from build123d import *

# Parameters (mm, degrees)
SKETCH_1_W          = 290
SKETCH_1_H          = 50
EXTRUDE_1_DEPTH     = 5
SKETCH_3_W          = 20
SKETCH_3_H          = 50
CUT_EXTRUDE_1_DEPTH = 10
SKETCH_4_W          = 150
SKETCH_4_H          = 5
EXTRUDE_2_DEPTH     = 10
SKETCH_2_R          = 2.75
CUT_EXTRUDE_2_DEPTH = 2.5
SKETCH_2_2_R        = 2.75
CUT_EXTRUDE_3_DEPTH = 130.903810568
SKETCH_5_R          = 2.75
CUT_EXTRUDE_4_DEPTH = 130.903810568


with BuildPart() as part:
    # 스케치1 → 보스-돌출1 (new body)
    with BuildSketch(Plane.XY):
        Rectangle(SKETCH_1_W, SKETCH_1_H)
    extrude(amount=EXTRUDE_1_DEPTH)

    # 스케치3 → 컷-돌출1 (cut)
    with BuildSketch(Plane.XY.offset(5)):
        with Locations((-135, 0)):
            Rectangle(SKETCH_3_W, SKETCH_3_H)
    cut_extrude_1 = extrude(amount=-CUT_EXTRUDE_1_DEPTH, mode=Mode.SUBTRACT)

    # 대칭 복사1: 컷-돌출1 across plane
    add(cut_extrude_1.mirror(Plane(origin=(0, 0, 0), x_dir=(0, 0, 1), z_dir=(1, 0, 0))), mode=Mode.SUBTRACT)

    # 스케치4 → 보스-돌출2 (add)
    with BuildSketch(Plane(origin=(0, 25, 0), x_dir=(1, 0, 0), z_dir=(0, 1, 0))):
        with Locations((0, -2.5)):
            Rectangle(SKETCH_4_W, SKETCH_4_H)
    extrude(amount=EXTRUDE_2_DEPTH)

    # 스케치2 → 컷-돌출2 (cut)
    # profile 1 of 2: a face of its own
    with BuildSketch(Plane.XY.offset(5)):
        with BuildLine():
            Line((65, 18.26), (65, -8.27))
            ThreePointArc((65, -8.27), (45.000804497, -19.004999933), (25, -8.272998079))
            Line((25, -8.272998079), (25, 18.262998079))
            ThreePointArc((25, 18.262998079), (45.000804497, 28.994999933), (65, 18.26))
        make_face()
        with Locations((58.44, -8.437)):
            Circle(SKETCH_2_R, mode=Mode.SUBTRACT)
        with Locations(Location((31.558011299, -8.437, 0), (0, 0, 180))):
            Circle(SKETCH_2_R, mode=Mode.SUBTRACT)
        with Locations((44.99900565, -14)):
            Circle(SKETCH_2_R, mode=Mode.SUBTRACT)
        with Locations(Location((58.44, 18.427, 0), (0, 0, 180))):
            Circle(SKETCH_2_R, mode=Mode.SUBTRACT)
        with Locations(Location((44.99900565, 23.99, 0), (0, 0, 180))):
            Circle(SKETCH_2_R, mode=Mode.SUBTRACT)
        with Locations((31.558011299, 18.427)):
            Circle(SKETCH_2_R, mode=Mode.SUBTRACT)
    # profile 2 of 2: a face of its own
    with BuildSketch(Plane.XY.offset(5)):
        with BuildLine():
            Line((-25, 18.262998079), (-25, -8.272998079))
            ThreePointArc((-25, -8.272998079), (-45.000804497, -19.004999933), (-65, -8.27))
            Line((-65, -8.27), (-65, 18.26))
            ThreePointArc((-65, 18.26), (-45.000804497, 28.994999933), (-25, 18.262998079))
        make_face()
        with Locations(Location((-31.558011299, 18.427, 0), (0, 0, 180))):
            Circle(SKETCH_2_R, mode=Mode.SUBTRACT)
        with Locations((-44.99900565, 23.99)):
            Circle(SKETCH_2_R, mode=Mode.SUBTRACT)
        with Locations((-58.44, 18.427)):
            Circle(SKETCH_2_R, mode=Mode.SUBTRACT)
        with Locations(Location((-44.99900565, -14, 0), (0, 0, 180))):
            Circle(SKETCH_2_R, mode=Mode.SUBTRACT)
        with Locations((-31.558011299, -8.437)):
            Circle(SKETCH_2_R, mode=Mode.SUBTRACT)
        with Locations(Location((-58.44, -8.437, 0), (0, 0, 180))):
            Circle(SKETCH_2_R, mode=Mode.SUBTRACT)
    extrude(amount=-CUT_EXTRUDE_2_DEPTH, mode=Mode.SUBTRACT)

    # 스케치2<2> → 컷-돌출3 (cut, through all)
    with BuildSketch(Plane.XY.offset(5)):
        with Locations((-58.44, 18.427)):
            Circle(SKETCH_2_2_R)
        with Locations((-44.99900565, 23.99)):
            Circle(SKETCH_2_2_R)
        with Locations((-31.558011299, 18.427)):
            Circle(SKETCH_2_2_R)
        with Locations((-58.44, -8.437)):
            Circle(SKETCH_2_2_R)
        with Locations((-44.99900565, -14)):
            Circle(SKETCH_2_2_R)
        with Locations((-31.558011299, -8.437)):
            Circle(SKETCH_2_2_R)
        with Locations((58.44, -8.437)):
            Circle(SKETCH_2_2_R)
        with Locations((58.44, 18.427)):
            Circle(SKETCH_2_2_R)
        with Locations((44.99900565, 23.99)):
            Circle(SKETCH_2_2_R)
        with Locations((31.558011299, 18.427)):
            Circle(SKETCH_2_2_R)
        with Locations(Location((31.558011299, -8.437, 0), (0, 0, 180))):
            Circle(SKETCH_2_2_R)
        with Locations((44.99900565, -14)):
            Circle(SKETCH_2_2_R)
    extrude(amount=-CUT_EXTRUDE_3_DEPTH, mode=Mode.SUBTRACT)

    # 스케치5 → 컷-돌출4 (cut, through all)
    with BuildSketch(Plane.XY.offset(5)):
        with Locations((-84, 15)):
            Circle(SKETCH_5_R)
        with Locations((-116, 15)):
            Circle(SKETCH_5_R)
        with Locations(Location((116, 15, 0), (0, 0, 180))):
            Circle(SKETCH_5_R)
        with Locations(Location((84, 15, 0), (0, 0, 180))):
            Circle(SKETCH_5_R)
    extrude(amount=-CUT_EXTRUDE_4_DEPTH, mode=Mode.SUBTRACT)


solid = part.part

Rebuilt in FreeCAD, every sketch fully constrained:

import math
import FreeCAD as App
import Part
import Sketcher

V = App.Vector


def add_polygon(sketch, points):
    """Adds a closed chain of lines whose ends are joined by coincident constraints."""
    first, n = sketch.GeometryCount, len(points)
    for a, b in zip(points, points[1:] + points[:1]):
        sketch.addGeometry(Part.LineSegment(App.Vector(*a, 0), App.Vector(*b, 0)), False)
    for i in range(n):
        sketch.addConstraint(Sketcher.Constraint("Coincident", first + i, 2, first + (i + 1) % n, 1))

doc = App.newDocument("Part")
body = doc.addObject("PartDesign::Body", "Body")

# Sketch on XY plane
sketch1 = body.newObject("Sketcher::SketchObject", "Sketch")
sketch1.AttachmentSupport = (doc.getObject("XY_Plane"), [""])
sketch1.MapMode = "FlatFace"
add_polygon(sketch1, [(-145, 25), (-145, -25), (145, -25), (145, 25)])  # lines 0-3
sketch1.addConstraint(Sketcher.Constraint("Vertical", 0))
sketch1.addConstraint(Sketcher.Constraint("Horizontal", 1))
sketch1.addConstraint(Sketcher.Constraint("Vertical", 2))
sketch1.addConstraint(Sketcher.Constraint("Horizontal", 3))
sketch1.addConstraint(Sketcher.Constraint("Symmetric", 0, 2, 2, 2, -1, 1))
sketch1.addConstraint(Sketcher.Constraint("DistanceX", 1, 1, 1, 2, 290.0))
sketch1.addConstraint(Sketcher.Constraint("DistanceY", 0, 2, 0, 1, 50.0))
pad1 = body.newObject("PartDesign::Pad", "Pad")
pad1.Profile = sketch1
pad1.Length = 5

# Sketch on XY plane
sketch2 = body.newObject("Sketcher::SketchObject", "Sketch001")
sketch2.AttachmentSupport = (doc.getObject("XY_Plane"), [""])
sketch2.MapMode = "FlatFace"
sketch2.AttachmentOffset = App.Placement(V(0, 0, 5), App.Rotation())
add_polygon(sketch2, [(-145, 25), (-145, -25), (-125, -25), (-125, 25)])  # lines 0-3
sketch2.addConstraint(Sketcher.Constraint("Vertical", 0))
sketch2.addConstraint(Sketcher.Constraint("Horizontal", 1))
sketch2.addConstraint(Sketcher.Constraint("Vertical", 2))
sketch2.addConstraint(Sketcher.Constraint("Horizontal", 3))
sketch2.addConstraint(Sketcher.Constraint("DistanceX", 1, 1, 1, 2, 20.0))
sketch2.addConstraint(Sketcher.Constraint("DistanceY", 0, 2, 0, 1, 50.0))
sketch2.addConstraint(Sketcher.Constraint("DistanceX", 0, 2, -1, 1, 145.0))
sketch2.addConstraint(Sketcher.Constraint("DistanceY", 0, 2, -1, 1, 25.0))
pocket1 = body.newObject("PartDesign::Pocket", "Pocket")
pocket1.Profile = sketch2
pocket1.Length = 10
doc.recompute()

mirrored = body.newObject("PartDesign::Mirrored", "Mirrored")
mirrored.Originals = [pocket1]
mirrored.MirrorPlane = (doc.getObject("YZ_Plane"), [""])
body.Tip = mirrored

# Sketch on XZ plane
sketch3 = body.newObject("Sketcher::SketchObject", "Sketch002")
sketch3.AttachmentSupport = (doc.getObject("XZ_Plane"), [""])
sketch3.MapMode = "FlatFace"
sketch3.AttachmentOffset = App.Placement(V(0, 0, -25), App.Rotation())
add_polygon(sketch3, [(-75, 0), (-75, 5), (75, 5), (75, 0)])  # lines 0-3
sketch3.addConstraint(Sketcher.Constraint("Vertical", 0))
sketch3.addConstraint(Sketcher.Constraint("Horizontal", 1))
sketch3.addConstraint(Sketcher.Constraint("Vertical", 2))
sketch3.addConstraint(Sketcher.Constraint("Horizontal", 3))
sketch3.addConstraint(Sketcher.Constraint("Symmetric", 2, 2, 3, 2, -1, 1))
sketch3.addConstraint(Sketcher.Constraint("DistanceX", 1, 1, 1, 2, 150.0))
sketch3.addConstraint(Sketcher.Constraint("DistanceY", 0, 1, 0, 2, 5.0))
pad2 = body.newObject("PartDesign::Pad", "Pad001")
pad2.Profile = sketch3
pad2.Length = 10
pad2.Reversed = True

# Sketch on XY plane
sketch4 = body.newObject("Sketcher::SketchObject", "Sketch003")
sketch4.AttachmentSupport = (doc.getObject("XY_Plane"), [""])
sketch4.MapMode = "FlatFace"
sketch4.AttachmentOffset = App.Placement(V(0, 0, 5), App.Rotation())
sketch4.addGeometry(Part.LineSegment(V(65, -8.3, 0), V(65, 18.3, 0)), False)
sketch4.addGeometry(Part.ArcOfCircle(Part.Circle(V(45, 5, 0), V(0, 0, 1), 24), math.radians(34), math.radians(146)), False)
sketch4.addGeometry(Part.LineSegment(V(25, 18.3, 0), V(25, -8.3, 0)), False)
sketch4.addGeometry(Part.ArcOfCircle(Part.Circle(V(45, 5, 0), V(0, 0, 1), 24), math.radians(-146), math.radians(-34)), False)
sketch4.addGeometry(Part.Circle(V(58.4, -8.4, 0), V(0, 0, 1), 2.8), False)
sketch4.addGeometry(Part.Circle(V(45, -14, 0), V(0, 0, 1), 2.8), False)
sketch4.addGeometry(Part.Circle(V(31.6, -8.4, 0), V(0, 0, 1), 2.8), False)
sketch4.addGeometry(Part.Circle(V(58.4, 18.4, 0), V(0, 0, 1), 2.8), False)
sketch4.addGeometry(Part.Circle(V(45, 24, 0), V(0, 0, 1), 2.8), False)
sketch4.addGeometry(Part.Circle(V(31.6, 18.4, 0), V(0, 0, 1), 2.8), False)
sketch4.addGeometry(Part.LineSegment(V(-25, -8.3, 0), V(-25, 18.3, 0)), False)
sketch4.addGeometry(Part.ArcOfCircle(Part.Circle(V(-45, 5, 0), V(0, 0, 1), 24), math.radians(34), math.radians(146)), False)
sketch4.addGeometry(Part.LineSegment(V(-65, 18.3, 0), V(-65, -8.3, 0)), False)
sketch4.addGeometry(Part.ArcOfCircle(Part.Circle(V(-45, 5, 0), V(0, 0, 1), 24), math.radians(-146), math.radians(-34)), False)
sketch4.addGeometry(Part.Circle(V(-31.6, -8.4, 0), V(0, 0, 1), 2.8), False)
sketch4.addGeometry(Part.Circle(V(-45, -14, 0), V(0, 0, 1), 2.8), False)
sketch4.addGeometry(Part.Circle(V(-58.4, -8.4, 0), V(0, 0, 1), 2.8), False)
sketch4.addGeometry(Part.Circle(V(-31.6, 18.4, 0), V(0, 0, 1), 2.8), False)
sketch4.addGeometry(Part.Circle(V(-45, 24, 0), V(0, 0, 1), 2.8), False)
sketch4.addGeometry(Part.Circle(V(-58.4, 18.4, 0), V(0, 0, 1), 2.8), False)
sketch4.addConstraint(Sketcher.Constraint("Coincident", 0, 2, 1, 1))
sketch4.addConstraint(Sketcher.Constraint("Coincident", 1, 2, 2, 1))
sketch4.addConstraint(Sketcher.Constraint("Coincident", 2, 2, 3, 1))
sketch4.addConstraint(Sketcher.Constraint("Coincident", 3, 2, 0, 1))
sketch4.addConstraint(Sketcher.Constraint("Coincident", 10, 2, 11, 1))
sketch4.addConstraint(Sketcher.Constraint("Coincident", 11, 2, 12, 1))
sketch4.addConstraint(Sketcher.Constraint("Coincident", 12, 2, 13, 1))
sketch4.addConstraint(Sketcher.Constraint("Coincident", 13, 2, 10, 1))
sketch4.addConstraint(Sketcher.Constraint("Vertical", 0))
sketch4.addConstraint(Sketcher.Constraint("Vertical", 2))
sketch4.addConstraint(Sketcher.Constraint("Vertical", 10))
sketch4.addConstraint(Sketcher.Constraint("Vertical", 12))
sketch4.addConstraint(Sketcher.Constraint("Coincident", 3, 3, 1, 3))
sketch4.addConstraint(Sketcher.Constraint("Coincident", 13, 3, 11, 3))
sketch4.addConstraint(Sketcher.Constraint("Equal", 1, 3))
sketch4.addConstraint(Sketcher.Constraint("Equal", 4, 5))
sketch4.addConstraint(Sketcher.Constraint("Equal", 5, 6))
sketch4.addConstraint(Sketcher.Constraint("Equal", 6, 7))
sketch4.addConstraint(Sketcher.Constraint("Equal", 7, 8))
sketch4.addConstraint(Sketcher.Constraint("Equal", 8, 9))
sketch4.addConstraint(Sketcher.Constraint("Equal", 3, 11))
sketch4.addConstraint(Sketcher.Constraint("Equal", 11, 13))
sketch4.addConstraint(Sketcher.Constraint("Equal", 9, 14))
sketch4.addConstraint(Sketcher.Constraint("Equal", 14, 15))
sketch4.addConstraint(Sketcher.Constraint("Equal", 15, 16))
sketch4.addConstraint(Sketcher.Constraint("Equal", 16, 17))
sketch4.addConstraint(Sketcher.Constraint("Equal", 17, 18))
sketch4.addConstraint(Sketcher.Constraint("Equal", 18, 19))
sketch4.addConstraint(Sketcher.Constraint("Symmetric", 1, 3, 11, 3, -2))
sketch4.addConstraint(Sketcher.Constraint("Symmetric", 6, 3, 14, 3, -2))
sketch4.addConstraint(Sketcher.Constraint("Symmetric", 5, 3, 15, 3, -2))
sketch4.addConstraint(Sketcher.Constraint("Symmetric", 4, 3, 16, 3, -2))
sketch4.addConstraint(Sketcher.Constraint("Symmetric", 9, 3, 17, 3, -2))
sketch4.addConstraint(Sketcher.Constraint("Symmetric", 8, 3, 18, 3, -2))
sketch4.addConstraint(Sketcher.Constraint("Symmetric", 7, 3, 19, 3, -2))
sketch4.addConstraint(Sketcher.Constraint("Horizontal", 4, 3, 6, 3))
sketch4.addConstraint(Sketcher.Constraint("Horizontal", 7, 3, 9, 3))
sketch4.addConstraint(Sketcher.Constraint("Horizontal", 1, 2, 10, 2))
sketch4.addConstraint(Sketcher.Constraint("Horizontal", 0, 2, 11, 2))
sketch4.addConstraint(Sketcher.Constraint("Vertical", 3, 3, 5, 3))
sketch4.addConstraint(Sketcher.Constraint("Vertical", 4, 3, 7, 3))
sketch4.addConstraint(Sketcher.Constraint("Vertical", 5, 3, 8, 3))
sketch4.addConstraint(Sketcher.Constraint("Vertical", 6, 3, 9, 3))
sketch4.addConstraint(Sketcher.Constraint("Radius", 1, 24.0))
sketch4.addConstraint(Sketcher.Constraint("Diameter", 4, 5.5))
sketch4.addConstraint(Sketcher.Constraint("DistanceY", 5, 3, -1, 1, 14.0))
sketch4.addConstraint(Sketcher.Constraint("DistanceX", -1, 1, 0, 2, 65.0))
sketch4.addConstraint(Sketcher.Constraint("DistanceX", -1, 1, 1, 2, 25.0))
sketch4.addConstraint(Sketcher.Constraint("DistanceY", 0, 1, 0, 2, 26.53))
sketch4.addConstraint(Sketcher.Constraint("DistanceY", 6, 3, 1, 2, 26.699998))
sketch4.addConstraint(Sketcher.Constraint("DistanceX", -1, 1, 4, 3, 58.44))
sketch4.addConstraint(Sketcher.Constraint("DistanceY", -1, 1, 8, 3, 23.99))
sketch4.addConstraint(Sketcher.Constraint("DistanceY", -1, 1, 0, 2, 18.26))
sketch4.addConstraint(Sketcher.Constraint("DistanceY", -1, 1, 7, 3, 18.427))
sketch4.addConstraint(Sketcher.Constraint("DistanceX", -1, 1, 6, 3, 31.558011))
pocket2 = body.newObject("PartDesign::Pocket", "Pocket001")
pocket2.Profile = sketch4
pocket2.Length = 2.5

# Sketch on XY plane
sketch5 = body.newObject("Sketcher::SketchObject", "Sketch004")
sketch5.AttachmentSupport = (doc.getObject("XY_Plane"), [""])
sketch5.MapMode = "FlatFace"
sketch5.AttachmentOffset = App.Placement(V(0, 0, 5), App.Rotation())
sketch5.addGeometry(Part.Circle(V(-58.4, 18.4, 0), V(0, 0, 1), 2.8), False)
sketch5.addGeometry(Part.Circle(V(-45, 24, 0), V(0, 0, 1), 2.8), False)
sketch5.addGeometry(Part.Circle(V(-31.6, 18.4, 0), V(0, 0, 1), 2.8), False)
sketch5.addGeometry(Part.Circle(V(-58.4, -8.4, 0), V(0, 0, 1), 2.8), False)
sketch5.addGeometry(Part.Circle(V(-45, -14, 0), V(0, 0, 1), 2.8), False)
sketch5.addGeometry(Part.Circle(V(-31.6, -8.4, 0), V(0, 0, 1), 2.8), False)
sketch5.addGeometry(Part.Circle(V(58.4, -8.4, 0), V(0, 0, 1), 2.8), False)
sketch5.addGeometry(Part.Circle(V(58.4, 18.4, 0), V(0, 0, 1), 2.8), False)
sketch5.addGeometry(Part.Circle(V(45, 24, 0), V(0, 0, 1), 2.8), False)
sketch5.addGeometry(Part.Circle(V(31.6, 18.4, 0), V(0, 0, 1), 2.8), False)
sketch5.addGeometry(Part.Circle(V(31.6, -8.4, 0), V(0, 0, 1), 2.8), False)
sketch5.addGeometry(Part.Circle(V(45, -14, 0), V(0, 0, 1), 2.8), False)
sketch5.addConstraint(Sketcher.Constraint("Equal", 0, 1))
sketch5.addConstraint(Sketcher.Constraint("Equal", 1, 2))
sketch5.addConstraint(Sketcher.Constraint("Equal", 2, 3))
sketch5.addConstraint(Sketcher.Constraint("Equal", 3, 4))
sketch5.addConstraint(Sketcher.Constraint("Equal", 4, 5))
sketch5.addConstraint(Sketcher.Constraint("Equal", 5, 6))
sketch5.addConstraint(Sketcher.Constraint("Equal", 6, 7))
sketch5.addConstraint(Sketcher.Constraint("Equal", 7, 8))
sketch5.addConstraint(Sketcher.Constraint("Equal", 8, 9))
sketch5.addConstraint(Sketcher.Constraint("Equal", 9, 10))
sketch5.addConstraint(Sketcher.Constraint("Equal", 10, 11))
sketch5.addConstraint(Sketcher.Constraint("Symmetric", 3, 3, 6, 3, -2))
sketch5.addConstraint(Sketcher.Constraint("Symmetric", 0, 3, 7, 3, -2))
sketch5.addConstraint(Sketcher.Constraint("Symmetric", 1, 3, 8, 3, -2))
sketch5.addConstraint(Sketcher.Constraint("Symmetric", 2, 3, 9, 3, -2))
sketch5.addConstraint(Sketcher.Constraint("Symmetric", 5, 3, 10, 3, -2))
sketch5.addConstraint(Sketcher.Constraint("Symmetric", 4, 3, 11, 3, -2))
sketch5.addConstraint(Sketcher.Constraint("Horizontal", 0, 3, 2, 3))
sketch5.addConstraint(Sketcher.Constraint("Horizontal", 3, 3, 5, 3))
sketch5.addConstraint(Sketcher.Constraint("Vertical", 0, 3, 3, 3))
sketch5.addConstraint(Sketcher.Constraint("Vertical", 1, 3, 4, 3))
sketch5.addConstraint(Sketcher.Constraint("Vertical", 2, 3, 5, 3))
sketch5.addConstraint(Sketcher.Constraint("Diameter", 0, 5.5))
sketch5.addConstraint(Sketcher.Constraint("DistanceY", 4, 3, -1, 1, 14.0))
sketch5.addConstraint(Sketcher.Constraint("DistanceX", 0, 3, -1, 1, 58.44))
sketch5.addConstraint(Sketcher.Constraint("DistanceY", -1, 1, 1, 3, 23.99))
sketch5.addConstraint(Sketcher.Constraint("DistanceY", -1, 1, 0, 3, 18.427))
sketch5.addConstraint(Sketcher.Constraint("DistanceY", 3, 3, -1, 1, 8.437))
sketch5.addConstraint(Sketcher.Constraint("DistanceX", 2, 3, -1, 1, 31.558011))
sketch5.addConstraint(Sketcher.Constraint("DistanceX", 1, 3, 8, 3, 89.998011))
pocket3 = body.newObject("PartDesign::Pocket", "Pocket002")
pocket3.Profile = sketch5
pocket3.Type = "ThroughAll"

# Sketch on XY plane
sketch6 = body.newObject("Sketcher::SketchObject", "Sketch005")
sketch6.AttachmentSupport = (doc.getObject("XY_Plane"), [""])
sketch6.MapMode = "FlatFace"
sketch6.AttachmentOffset = App.Placement(V(0, 0, 5), App.Rotation())
sketch6.addGeometry(Part.Circle(V(-84, 15, 0), V(0, 0, 1), 2.8), False)
sketch6.addGeometry(Part.Circle(V(-116, 15, 0), V(0, 0, 1), 2.8), False)
sketch6.addGeometry(Part.Circle(V(116, 15, 0), V(0, 0, 1), 2.8), False)
sketch6.addGeometry(Part.Circle(V(84, 15, 0), V(0, 0, 1), 2.8), False)
sketch6.addConstraint(Sketcher.Constraint("Equal", 0, 1))
sketch6.addConstraint(Sketcher.Constraint("Equal", 1, 2))
sketch6.addConstraint(Sketcher.Constraint("Equal", 2, 3))
sketch6.addConstraint(Sketcher.Constraint("Symmetric", 1, 3, 2, 3, -2))
sketch6.addConstraint(Sketcher.Constraint("Symmetric", 0, 3, 3, 3, -2))
sketch6.addConstraint(Sketcher.Constraint("Horizontal", 0, 3, 1, 3))
sketch6.addConstraint(Sketcher.Constraint("Diameter", 0, 5.5))
sketch6.addConstraint(Sketcher.Constraint("DistanceX", 0, 3, -1, 1, 84.0))
sketch6.addConstraint(Sketcher.Constraint("DistanceY", -1, 1, 0, 3, 15.0))
sketch6.addConstraint(Sketcher.Constraint("DistanceX", 1, 3, -1, 1, 116.0))
pocket4 = body.newObject("PartDesign::Pocket", "Pocket003")
pocket4.Profile = sketch6
pocket4.Type = "ThroughAll"

doc.recompute()
